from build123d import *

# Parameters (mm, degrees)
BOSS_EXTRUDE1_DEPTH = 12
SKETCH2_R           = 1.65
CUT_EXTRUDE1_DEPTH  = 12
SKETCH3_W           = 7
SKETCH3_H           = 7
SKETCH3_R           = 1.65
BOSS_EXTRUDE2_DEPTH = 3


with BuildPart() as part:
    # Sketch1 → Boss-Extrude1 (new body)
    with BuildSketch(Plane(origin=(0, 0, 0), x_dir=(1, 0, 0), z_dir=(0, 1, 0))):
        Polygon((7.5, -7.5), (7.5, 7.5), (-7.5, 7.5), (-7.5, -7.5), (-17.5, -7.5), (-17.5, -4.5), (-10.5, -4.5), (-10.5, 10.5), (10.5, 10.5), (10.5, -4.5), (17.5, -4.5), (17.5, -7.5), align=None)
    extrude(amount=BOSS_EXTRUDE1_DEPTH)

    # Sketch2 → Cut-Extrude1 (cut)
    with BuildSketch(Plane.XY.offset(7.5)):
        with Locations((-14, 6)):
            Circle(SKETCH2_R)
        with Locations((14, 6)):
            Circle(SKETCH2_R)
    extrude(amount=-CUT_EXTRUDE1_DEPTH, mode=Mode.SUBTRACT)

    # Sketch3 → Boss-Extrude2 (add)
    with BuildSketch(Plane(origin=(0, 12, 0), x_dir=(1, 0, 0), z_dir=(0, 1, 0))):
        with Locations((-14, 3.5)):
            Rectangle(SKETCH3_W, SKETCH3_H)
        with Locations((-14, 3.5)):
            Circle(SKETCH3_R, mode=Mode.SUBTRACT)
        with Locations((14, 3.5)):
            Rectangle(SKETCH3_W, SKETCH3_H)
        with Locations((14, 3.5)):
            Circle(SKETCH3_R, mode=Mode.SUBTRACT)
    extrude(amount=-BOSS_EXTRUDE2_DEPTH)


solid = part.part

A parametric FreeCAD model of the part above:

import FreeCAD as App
import Part
import Sketcher
from FreeCAD import Vector

doc = App.newDocument("Part")
params = doc.addObject("Spreadsheet::Sheet", "Params")
for row, (alias, value) in enumerate([
    ("sketch1_width", "10 mm"),
    ("sketch1_width2", "7 mm"),
    ("sketch1_width3", "21 mm"),
    ("sketch1_height", "3 mm"),
    ("pad1_length", "12 mm"),
    ("sketch2_diameter", "3.3 mm"),
    ("pocket1_length", "12 mm"),
    ("sketch3_diameter", "3.3 mm"),
    ("sketch3_width", "7 mm"),
    ("pad2_length", "3 mm"),
], start=1):
    params.set(f"A{row}", alias)
    params.set(f"B{row}", "=" + value)
    params.setAlias(f"B{row}", alias)

body = doc.addObject("PartDesign::Body", "Body")

# Sketch on XZ plane
sketch1 = body.newObject("Sketcher::SketchObject", "Sketch")
sketch1.AttachmentSupport = (doc.getObject("XZ_Plane"), [""])
sketch1.MapMode = "FlatFace"
sketch1.addGeometry([
    Part.LineSegment(Vector(7.5, -7.5, 0), Vector(7.5, 7.5, 0)),  # 0
    Part.LineSegment(Vector(7.5, 7.5, 0), Vector(17.5, 7.5, 0)),  # 1
    Part.LineSegment(Vector(17.5, 7.5, 0), Vector(17.5, 4.5, 0)),  # 2
    Part.LineSegment(Vector(17.5, 4.5, 0), Vector(10.5, 4.5, 0)),  # 3
    Part.LineSegment(Vector(10.5, 4.5, 0), Vector(10.5, -10.5, 0)),  # 4
    Part.LineSegment(Vector(10.5, -10.5, 0), Vector(-10.5, -10.5, 0)),  # 5
    Part.LineSegment(Vector(-10.5, -10.5, 0), Vector(-10.5, 4.5, 0)),  # 6
    Part.LineSegment(Vector(-10.5, 4.5, 0), Vector(-17.5, 4.5, 0)),  # 7
    Part.LineSegment(Vector(-17.5, 4.5, 0), Vector(-17.5, 7.5, 0)),  # 8
    Part.LineSegment(Vector(-17.5, 7.5, 0), Vector(-7.5, 7.5, 0)),  # 9
    Part.LineSegment(Vector(-7.5, 7.5, 0), Vector(-7.5, -7.5, 0)),  # 10
    Part.LineSegment(Vector(-7.5, -7.5, 0), Vector(7.5, -7.5, 0)),  # 11
], False)
sketch1.addConstraint([
    Sketcher.Constraint("Coincident", 0, 2, 1, 1),
    Sketcher.Constraint("Coincident", 1, 2, 2, 1),
    Sketcher.Constraint("Coincident", 2, 2, 3, 1),
    Sketcher.Constraint("Coincident", 3, 2, 4, 1),
    Sketcher.Constraint("Coincident", 4, 2, 5, 1),
    Sketcher.Constraint("Coincident", 5, 2, 6, 1),
    Sketcher.Constraint("Coincident", 6, 2, 7, 1),
    Sketcher.Constraint("Coincident", 7, 2, 8, 1),
    Sketcher.Constraint("Coincident", 8, 2, 9, 1),
    Sketcher.Constraint("Coincident", 9, 2, 10, 1),
    Sketcher.Constraint("Coincident", 10, 2, 11, 1),
    Sketcher.Constraint("Coincident", 11, 2, 0, 1),
    Sketcher.Constraint("Vertical", 0),
    Sketcher.Constraint("Horizontal", 1),
    Sketcher.Constraint("Vertical", 2),
    Sketcher.Constraint("Horizontal", 3),
    Sketcher.Constraint("Vertical", 4),
    Sketcher.Constraint("Horizontal", 5),
    Sketcher.Constraint("Vertical", 6),
    Sketcher.Constraint("Horizontal", 7),
    Sketcher.Constraint("Vertical", 8),
    Sketcher.Constraint("Horizontal", 9),
    Sketcher.Constraint("Vertical", 10),
    Sketcher.Constraint("Horizontal", 11),
    Sketcher.Constraint("Symmetric", 0, 2, 10, 2, -1, 1),
    Sketcher.Constraint("Symmetric", 3, 2, 6, 2, -2),
    Sketcher.Constraint("Symmetric", 1, 2, 8, 2, -2),
    Sketcher.Constraint("Equal", 11, 0),
    Sketcher.Constraint("Equal", 0, 4),
    Sketcher.Constraint("DistanceX", 1, 1, 1, 2, 10.0),
    Sketcher.Constraint("DistanceX", 3, 2, 3, 1, 7.0),
    Sketcher.Constraint("DistanceX", 5, 2, 5, 1, 21.0),
    Sketcher.Constraint("DistanceY", 2, 2, 2, 1, 3.0),
])
sketch1.setExpression("Constraints[29]", "Params.sketch1_width")
sketch1.setExpression("Constraints[30]", "Params.sketch1_width2")
sketch1.setExpression("Constraints[31]", "Params.sketch1_width3")
sketch1.setExpression("Constraints[32]", "Params.sketch1_height")
pad1 = body.newObject("PartDesign::Pad", "Pad")
pad1.Profile = sketch1
pad1.setExpression("Length", "Params.pad1_length")
pad1.Reversed = True

# Sketch on XY plane
sketch2 = body.newObject("Sketcher::SketchObject", "Sketch001")
sketch2.AttachmentSupport = (doc.getObject("XY_Plane"), [""])
sketch2.MapMode = "FlatFace"
sketch2.AttachmentOffset = App.Placement(Vector(0, 0, 7.5), App.Rotation())
sketch2.addGeometry([
    Part.Circle(Vector(-14, 6, 0), Vector(0, 0, 1), 1.6),
    Part.Circle(Vector(14, 6, 0), Vector(0, 0, 1), 1.6),
], False)
sketch2.addConstraint([
    Sketcher.Constraint("Equal", 0, 1),
    Sketcher.Constraint("Symmetric", 0, 3, 1, 3, -2),
    Sketcher.Constraint("Diameter", 0, 3.3),
    Sketcher.Constraint("DistanceX", 0, 3, -1, 1, 14.0),
    Sketcher.Constraint("DistanceY", -1, 1, 0, 3, 6.0),
])
sketch2.setExpression("Constraints[2]", "Params.sketch2_diameter")
pocket1 = body.newObject("PartDesign::Pocket", "Pocket")
pocket1.Profile = sketch2
pocket1.setExpression("Length", "Params.pocket1_length")

# Sketch on XZ plane
sketch3 = body.newObject("Sketcher::SketchObject", "Sketch002")
sketch3.AttachmentSupport = (doc.getObject("XZ_Plane"), [""])
sketch3.MapMode = "FlatFace"
sketch3.AttachmentOffset = App.Placement(Vector(0, 0, -12), App.Rotation())
sketch3.addGeometry([
    Part.LineSegment(Vector(-17.5, -7, 0), Vector(-17.5, 0, 0)),  # 0
    Part.LineSegment(Vector(-17.5, 0, 0), Vector(-10.5, 0, 0)),  # 1
    Part.LineSegment(Vector(-10.5, 0, 0), Vector(-10.5, -7, 0)),  # 2
    Part.LineSegment(Vector(-10.5, -7, 0), Vector(-17.5, -7, 0)),  # 3
    Part.Circle(Vector(-14, -3.5, 0), Vector(0, 0, 1), 1.6),  # 4
    Part.LineSegment(Vector(10.5, -7, 0), Vector(10.5, 0, 0)),  # 5
    Part.LineSegment(Vector(10.5, 0, 0), Vector(17.5, 0, 0)),  # 6
    Part.LineSegment(Vector(17.5, 0, 0), Vector(17.5, -7, 0)),  # 7
    Part.LineSegment(Vector(17.5, -7, 0), Vector(10.5, -7, 0)),  # 8
    Part.Circle(Vector(14, -3.5, 0), Vector(0, 0, 1), 1.6),  # 9
], False)
sketch3.addConstraint([
    Sketcher.Constraint("Coincident", 0, 2, 1, 1),
    Sketcher.Constraint("Coincident", 1, 2, 2, 1),
    Sketcher.Constraint("Coincident", 2, 2, 3, 1),
    Sketcher.Constraint("Coincident", 3, 2, 0, 1),
    Sketcher.Constraint("Coincident", 5, 2, 6, 1),
    Sketcher.Constraint("Coincident", 6, 2, 7, 1),
    Sketcher.Constraint("Coincident", 7, 2, 8, 1),
    Sketcher.Constraint("Coincident", 8, 2, 5, 1),
    Sketcher.Constraint("Vertical", 0),
    Sketcher.Constraint("Horizontal", 1),
    Sketcher.Constraint("Vertical", 2),
    Sketcher.Constraint("Horizontal", 3),
    Sketcher.Constraint("Vertical", 5),
    Sketcher.Constraint("Horizontal", 6),
    Sketcher.Constraint("Vertical", 7),
    Sketcher.Constraint("Horizontal", 8),
    Sketcher.Constraint("Equal", 4, 9),
    Sketcher.Constraint("Symmetric", 1, 2, 5, 2, -1, 1),
    Sketcher.Constraint("Symmetric", 4, 3, 9, 3, -2),
    Sketcher.Constraint("Symmetric", 0, 2, 6, 2, -2),
    Sketcher.Constraint("Horizontal", 3, 2, 7, 2),
    Sketcher.Constraint("Equal", 8, 0),
    Sketcher.Constraint("Diameter", 4, 3.3),
    Sketcher.Constraint("DistanceX", 1, 1, 1, 2, 7.0),
    Sketcher.Constraint("DistanceX", 4, 3, -1, 1, 14.0),
    Sketcher.Constraint("DistanceX", 1, 2, 5, 2, 21.0),
    Sketcher.Constraint("DistanceY", 4, 3, -1, 1, 3.5),
])
sketch3.setExpression("Constraints[22]", "Params.sketch3_diameter")
sketch3.setExpression("Constraints[23]", "Params.sketch3_width")
pad2 = body.newObject("PartDesign::Pad", "Pad001")
pad2.Profile = sketch3
pad2.setExpression("Length", "Params.pad2_length")

doc.recompute()
